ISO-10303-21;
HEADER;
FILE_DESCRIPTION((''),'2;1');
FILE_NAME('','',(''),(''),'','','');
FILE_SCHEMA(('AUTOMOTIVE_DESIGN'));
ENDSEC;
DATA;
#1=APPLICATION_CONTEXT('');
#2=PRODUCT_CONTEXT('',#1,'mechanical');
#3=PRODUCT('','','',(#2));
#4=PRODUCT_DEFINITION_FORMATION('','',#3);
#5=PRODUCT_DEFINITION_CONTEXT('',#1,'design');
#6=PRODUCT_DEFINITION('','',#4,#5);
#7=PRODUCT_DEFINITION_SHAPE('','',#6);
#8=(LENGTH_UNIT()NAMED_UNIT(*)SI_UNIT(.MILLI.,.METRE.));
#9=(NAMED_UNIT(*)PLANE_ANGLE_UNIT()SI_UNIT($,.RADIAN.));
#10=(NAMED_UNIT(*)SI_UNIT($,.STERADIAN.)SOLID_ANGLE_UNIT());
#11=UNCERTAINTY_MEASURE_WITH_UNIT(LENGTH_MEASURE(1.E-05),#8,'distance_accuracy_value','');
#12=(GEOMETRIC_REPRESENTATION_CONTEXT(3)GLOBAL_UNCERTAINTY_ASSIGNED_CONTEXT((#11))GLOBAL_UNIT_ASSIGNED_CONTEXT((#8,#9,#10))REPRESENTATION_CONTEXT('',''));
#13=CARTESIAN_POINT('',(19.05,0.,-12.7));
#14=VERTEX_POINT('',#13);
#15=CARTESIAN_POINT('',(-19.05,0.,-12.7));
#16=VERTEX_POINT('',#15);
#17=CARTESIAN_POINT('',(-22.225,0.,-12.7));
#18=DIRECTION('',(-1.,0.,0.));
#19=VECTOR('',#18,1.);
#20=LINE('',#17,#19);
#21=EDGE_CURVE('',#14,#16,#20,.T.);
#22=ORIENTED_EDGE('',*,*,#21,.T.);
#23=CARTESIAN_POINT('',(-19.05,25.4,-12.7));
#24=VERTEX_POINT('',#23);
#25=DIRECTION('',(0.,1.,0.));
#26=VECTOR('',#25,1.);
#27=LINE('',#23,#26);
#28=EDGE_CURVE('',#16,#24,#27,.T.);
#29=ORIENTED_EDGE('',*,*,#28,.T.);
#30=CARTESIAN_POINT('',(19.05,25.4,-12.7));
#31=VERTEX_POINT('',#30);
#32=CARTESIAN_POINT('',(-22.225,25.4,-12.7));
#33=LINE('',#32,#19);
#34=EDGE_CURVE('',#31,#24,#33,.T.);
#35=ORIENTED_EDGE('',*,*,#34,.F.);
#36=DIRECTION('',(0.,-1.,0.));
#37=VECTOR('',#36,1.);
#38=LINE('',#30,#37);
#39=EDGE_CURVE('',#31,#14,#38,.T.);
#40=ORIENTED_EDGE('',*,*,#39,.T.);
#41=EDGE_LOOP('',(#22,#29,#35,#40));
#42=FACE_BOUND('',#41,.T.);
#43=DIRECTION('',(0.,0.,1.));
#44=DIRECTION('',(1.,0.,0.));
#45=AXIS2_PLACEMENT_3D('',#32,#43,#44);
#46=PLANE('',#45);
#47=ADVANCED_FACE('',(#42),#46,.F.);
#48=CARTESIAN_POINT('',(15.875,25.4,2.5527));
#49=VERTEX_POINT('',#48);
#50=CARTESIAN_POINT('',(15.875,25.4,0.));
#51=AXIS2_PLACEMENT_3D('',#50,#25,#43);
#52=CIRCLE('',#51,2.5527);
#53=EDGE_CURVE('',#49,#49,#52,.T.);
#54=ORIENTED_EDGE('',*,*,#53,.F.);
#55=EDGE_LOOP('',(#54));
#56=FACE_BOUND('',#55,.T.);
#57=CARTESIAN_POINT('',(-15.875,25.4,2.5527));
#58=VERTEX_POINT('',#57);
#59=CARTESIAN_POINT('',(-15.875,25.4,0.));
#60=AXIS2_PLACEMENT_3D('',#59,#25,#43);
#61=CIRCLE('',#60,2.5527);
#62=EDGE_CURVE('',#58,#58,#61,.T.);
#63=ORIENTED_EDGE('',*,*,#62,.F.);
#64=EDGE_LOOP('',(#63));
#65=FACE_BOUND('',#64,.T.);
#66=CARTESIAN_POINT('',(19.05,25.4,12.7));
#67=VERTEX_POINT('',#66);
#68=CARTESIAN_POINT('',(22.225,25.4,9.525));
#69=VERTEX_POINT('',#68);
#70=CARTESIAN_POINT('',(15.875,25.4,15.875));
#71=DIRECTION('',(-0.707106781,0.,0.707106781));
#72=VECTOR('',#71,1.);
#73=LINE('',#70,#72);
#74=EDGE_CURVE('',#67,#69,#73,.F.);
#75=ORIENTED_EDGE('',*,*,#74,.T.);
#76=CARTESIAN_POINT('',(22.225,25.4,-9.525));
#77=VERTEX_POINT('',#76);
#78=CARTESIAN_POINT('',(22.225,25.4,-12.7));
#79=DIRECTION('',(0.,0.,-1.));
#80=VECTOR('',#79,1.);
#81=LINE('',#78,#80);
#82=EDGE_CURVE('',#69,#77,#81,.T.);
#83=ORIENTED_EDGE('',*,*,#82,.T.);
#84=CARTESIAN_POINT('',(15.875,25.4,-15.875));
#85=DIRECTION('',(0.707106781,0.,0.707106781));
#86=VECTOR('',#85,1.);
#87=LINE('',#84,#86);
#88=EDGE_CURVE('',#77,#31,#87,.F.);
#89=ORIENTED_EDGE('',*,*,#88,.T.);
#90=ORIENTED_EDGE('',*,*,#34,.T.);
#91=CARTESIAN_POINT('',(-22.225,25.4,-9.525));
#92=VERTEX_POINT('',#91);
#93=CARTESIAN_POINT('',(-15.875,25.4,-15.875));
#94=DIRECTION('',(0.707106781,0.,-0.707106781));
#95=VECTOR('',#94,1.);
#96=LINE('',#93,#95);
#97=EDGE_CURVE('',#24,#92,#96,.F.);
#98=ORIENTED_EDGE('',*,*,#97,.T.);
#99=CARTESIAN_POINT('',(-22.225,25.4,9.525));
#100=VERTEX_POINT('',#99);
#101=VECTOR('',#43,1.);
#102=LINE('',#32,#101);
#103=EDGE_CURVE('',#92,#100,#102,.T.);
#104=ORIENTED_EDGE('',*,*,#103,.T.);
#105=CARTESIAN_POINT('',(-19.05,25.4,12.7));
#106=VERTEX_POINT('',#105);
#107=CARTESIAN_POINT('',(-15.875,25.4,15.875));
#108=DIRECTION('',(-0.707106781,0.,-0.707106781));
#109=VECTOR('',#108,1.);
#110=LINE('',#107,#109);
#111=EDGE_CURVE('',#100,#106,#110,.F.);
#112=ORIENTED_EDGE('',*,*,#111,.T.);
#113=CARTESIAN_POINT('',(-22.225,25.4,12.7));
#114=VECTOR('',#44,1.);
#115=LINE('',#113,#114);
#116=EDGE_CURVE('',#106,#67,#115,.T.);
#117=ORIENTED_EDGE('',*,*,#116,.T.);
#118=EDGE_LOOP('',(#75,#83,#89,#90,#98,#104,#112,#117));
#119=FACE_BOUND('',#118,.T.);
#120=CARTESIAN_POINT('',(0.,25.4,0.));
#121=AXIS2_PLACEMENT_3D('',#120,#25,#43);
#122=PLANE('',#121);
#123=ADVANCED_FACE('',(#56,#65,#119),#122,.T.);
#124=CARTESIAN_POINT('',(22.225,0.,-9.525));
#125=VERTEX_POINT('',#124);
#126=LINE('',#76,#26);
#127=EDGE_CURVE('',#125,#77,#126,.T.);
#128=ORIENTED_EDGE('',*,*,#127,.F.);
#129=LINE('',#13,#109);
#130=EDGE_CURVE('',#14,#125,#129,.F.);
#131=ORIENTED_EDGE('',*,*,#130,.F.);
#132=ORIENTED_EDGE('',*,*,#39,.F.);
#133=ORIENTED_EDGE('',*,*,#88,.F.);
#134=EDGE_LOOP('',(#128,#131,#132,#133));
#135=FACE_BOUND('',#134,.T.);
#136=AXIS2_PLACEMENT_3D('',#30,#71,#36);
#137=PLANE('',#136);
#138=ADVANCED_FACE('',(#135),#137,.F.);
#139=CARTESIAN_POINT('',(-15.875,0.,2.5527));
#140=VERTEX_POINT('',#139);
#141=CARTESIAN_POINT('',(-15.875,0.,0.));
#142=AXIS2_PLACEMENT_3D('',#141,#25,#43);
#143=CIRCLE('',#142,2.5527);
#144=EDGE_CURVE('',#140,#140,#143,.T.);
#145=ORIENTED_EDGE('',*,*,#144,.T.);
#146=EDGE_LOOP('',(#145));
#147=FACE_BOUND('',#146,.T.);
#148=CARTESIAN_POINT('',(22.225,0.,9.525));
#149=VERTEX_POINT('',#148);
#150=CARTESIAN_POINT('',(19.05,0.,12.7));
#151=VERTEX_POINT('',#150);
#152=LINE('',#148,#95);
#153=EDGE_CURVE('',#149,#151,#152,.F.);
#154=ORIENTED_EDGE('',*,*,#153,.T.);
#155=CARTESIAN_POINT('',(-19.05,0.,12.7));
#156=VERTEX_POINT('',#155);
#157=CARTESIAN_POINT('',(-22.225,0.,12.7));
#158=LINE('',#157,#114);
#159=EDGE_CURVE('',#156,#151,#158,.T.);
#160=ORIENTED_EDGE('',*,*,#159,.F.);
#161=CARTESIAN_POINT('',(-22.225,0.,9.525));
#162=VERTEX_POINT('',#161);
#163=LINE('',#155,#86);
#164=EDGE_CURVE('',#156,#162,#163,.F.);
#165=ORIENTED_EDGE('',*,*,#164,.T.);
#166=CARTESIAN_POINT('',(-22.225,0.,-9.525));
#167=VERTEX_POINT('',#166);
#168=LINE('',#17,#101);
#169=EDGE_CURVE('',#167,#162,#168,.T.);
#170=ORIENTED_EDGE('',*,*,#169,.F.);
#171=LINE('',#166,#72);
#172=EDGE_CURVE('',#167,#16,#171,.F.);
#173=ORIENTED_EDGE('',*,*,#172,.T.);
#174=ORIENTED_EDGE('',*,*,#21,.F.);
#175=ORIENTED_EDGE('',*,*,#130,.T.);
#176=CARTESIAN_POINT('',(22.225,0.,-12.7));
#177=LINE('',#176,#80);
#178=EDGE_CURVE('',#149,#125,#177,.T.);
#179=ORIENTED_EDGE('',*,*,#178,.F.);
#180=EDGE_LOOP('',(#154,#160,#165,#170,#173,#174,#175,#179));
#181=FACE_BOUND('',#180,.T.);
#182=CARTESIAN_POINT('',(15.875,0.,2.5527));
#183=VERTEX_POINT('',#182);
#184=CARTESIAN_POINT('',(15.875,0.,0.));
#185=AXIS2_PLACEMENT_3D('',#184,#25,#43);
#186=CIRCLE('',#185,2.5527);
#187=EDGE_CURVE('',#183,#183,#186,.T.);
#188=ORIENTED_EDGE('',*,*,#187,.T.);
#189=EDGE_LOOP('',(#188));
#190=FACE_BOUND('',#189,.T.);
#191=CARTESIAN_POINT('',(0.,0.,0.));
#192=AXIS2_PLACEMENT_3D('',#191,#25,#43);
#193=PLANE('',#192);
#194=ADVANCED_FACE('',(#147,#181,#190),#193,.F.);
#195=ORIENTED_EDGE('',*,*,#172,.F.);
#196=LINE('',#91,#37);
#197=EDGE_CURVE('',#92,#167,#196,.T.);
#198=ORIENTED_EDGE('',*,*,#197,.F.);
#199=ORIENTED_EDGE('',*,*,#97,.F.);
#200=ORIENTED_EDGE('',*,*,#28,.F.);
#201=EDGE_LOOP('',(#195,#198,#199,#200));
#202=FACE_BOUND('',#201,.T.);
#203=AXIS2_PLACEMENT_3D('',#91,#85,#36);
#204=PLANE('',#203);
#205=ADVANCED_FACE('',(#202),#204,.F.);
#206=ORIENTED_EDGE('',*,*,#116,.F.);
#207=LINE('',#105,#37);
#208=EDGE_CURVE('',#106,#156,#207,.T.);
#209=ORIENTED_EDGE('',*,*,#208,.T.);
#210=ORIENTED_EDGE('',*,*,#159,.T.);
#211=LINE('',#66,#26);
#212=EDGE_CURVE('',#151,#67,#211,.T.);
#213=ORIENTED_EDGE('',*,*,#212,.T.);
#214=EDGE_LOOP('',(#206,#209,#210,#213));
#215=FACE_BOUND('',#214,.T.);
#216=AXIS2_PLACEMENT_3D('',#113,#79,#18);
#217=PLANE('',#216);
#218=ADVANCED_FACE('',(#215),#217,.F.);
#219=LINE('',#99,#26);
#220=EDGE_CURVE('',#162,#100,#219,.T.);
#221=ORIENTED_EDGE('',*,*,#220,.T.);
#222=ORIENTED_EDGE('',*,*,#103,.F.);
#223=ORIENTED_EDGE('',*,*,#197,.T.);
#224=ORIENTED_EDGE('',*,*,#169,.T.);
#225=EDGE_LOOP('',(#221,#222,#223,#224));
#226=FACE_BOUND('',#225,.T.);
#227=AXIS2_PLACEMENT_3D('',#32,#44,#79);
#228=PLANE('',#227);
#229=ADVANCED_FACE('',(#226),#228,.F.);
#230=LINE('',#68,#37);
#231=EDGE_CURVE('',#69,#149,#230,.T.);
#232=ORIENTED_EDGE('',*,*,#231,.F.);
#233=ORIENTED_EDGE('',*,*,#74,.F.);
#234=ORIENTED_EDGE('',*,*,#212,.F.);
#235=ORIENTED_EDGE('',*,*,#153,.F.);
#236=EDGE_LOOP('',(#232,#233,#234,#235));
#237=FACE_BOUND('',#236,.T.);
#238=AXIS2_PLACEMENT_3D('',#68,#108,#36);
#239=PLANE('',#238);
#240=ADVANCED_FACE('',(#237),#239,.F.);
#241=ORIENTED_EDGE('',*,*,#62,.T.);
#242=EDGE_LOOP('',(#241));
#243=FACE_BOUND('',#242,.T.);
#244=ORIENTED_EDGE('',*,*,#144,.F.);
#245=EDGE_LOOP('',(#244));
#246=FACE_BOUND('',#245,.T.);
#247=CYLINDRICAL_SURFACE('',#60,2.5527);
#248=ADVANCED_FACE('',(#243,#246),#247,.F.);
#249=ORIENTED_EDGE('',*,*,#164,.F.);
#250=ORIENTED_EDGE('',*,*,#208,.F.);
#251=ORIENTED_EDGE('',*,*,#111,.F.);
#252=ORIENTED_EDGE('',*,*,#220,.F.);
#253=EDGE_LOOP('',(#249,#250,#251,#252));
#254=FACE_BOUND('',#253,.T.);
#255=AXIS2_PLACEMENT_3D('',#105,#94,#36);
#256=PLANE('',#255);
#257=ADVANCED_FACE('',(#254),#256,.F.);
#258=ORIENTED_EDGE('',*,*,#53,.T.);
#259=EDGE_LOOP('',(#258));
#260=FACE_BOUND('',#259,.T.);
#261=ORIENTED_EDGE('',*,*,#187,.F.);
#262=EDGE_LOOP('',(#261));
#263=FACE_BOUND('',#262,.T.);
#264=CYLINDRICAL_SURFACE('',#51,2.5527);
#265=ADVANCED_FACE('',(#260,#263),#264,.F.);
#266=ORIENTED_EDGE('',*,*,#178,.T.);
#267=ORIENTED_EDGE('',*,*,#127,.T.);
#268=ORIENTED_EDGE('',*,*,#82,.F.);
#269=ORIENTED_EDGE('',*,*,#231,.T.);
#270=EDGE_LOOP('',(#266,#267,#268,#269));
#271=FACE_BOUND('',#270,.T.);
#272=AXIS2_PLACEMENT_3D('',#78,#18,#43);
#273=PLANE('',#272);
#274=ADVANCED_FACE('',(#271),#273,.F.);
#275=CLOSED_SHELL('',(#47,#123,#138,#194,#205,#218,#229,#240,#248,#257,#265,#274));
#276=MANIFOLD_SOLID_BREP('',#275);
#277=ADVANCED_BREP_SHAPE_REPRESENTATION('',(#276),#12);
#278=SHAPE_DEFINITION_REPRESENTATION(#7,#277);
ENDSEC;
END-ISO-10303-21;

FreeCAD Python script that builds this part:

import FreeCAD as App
import Part
import Sketcher
from FreeCAD import Vector
Q = App.Units.Quantity


def edges_at(feature, points):
    """Names of the edges that pass closest to the given points."""
    edges = feature.Shape.Edges
    near = lambda p: min(range(len(edges)), key=lambda i: edges[i].distToShape(Part.Vertex(*p))[0])
    return sorted({f"Edge{near(p) + 1}" for p in points})


def add_polygon(sketch, points):
    """Adds a closed chain of lines whose ends are joined by coincident constraints."""
    first, n = sketch.GeometryCount, len(points)
    for a, b in zip(points, points[1:] + points[:1]):
        sketch.addGeometry(Part.LineSegment(App.Vector(*a, 0), App.Vector(*b, 0)), False)
    for i in range(n):
        sketch.addConstraint(Sketcher.Constraint("Coincident", first + i, 2, first + (i + 1) % n, 1))

doc = App.newDocument("Part")
body = doc.addObject("PartDesign::Body", "Body")

# Sketch on XZ plane
sketch1 = body.newObject("Sketcher::SketchObject", "Sketch")
sketch1.AttachmentSupport = (doc.getObject("XZ_Plane"), [""])
sketch1.MapMode = "FlatFace"
add_polygon(sketch1, [(-22, -13), (-22, 13), (22, 13), (22, -13)])  # lines 0-3
sketch1.addConstraint([
    Sketcher.Constraint("Vertical", 0),
    Sketcher.Constraint("Horizontal", 1),
    Sketcher.Constraint("Vertical", 2),
    Sketcher.Constraint("Horizontal", 3),
    Sketcher.Constraint("Symmetric", 0, 2, 2, 2, -1, 1),
    Sketcher.Constraint("DistanceY", 0, 1, 0, 2, Q("1 in")),
    Sketcher.Constraint("DistanceX", 1, 1, 1, 2, Q("1.75 in")),
])
pad1 = body.newObject("PartDesign::Pad", "Pad")
pad1.Profile = sketch1
pad1.Length = Q("1 in")
pad1.Reversed = True

# Sketch on XZ plane
sketch2 = body.newObject("Sketcher::SketchObject", "Sketch001")
sketch2.AttachmentSupport = (doc.getObject("XZ_Plane"), [""])
sketch2.MapMode = "FlatFace"
sketch2.AttachmentOffset = App.Placement(Vector(0, 0, -1 * 25.4), App.Rotation())
sketch2.addGeometry([
    Part.Circle(Vector(-15.9, 0, 0), Vector(0, 0, 1), 2.6),
    Part.Circle(Vector(15.9, 0, 0), Vector(0, 0, 1), 2.6),
], False)
sketch2.addConstraint([
    Sketcher.Constraint("Equal", 0, 1),
    Sketcher.Constraint("Symmetric", 0, 3, 1, 3, -1, 1),
    Sketcher.Constraint("PointOnObject", 0, 3, -1),
    Sketcher.Constraint("Diameter", 0, Q("0.201 in")),
    Sketcher.Constraint("DistanceX", 0, 3, 1, 3, Q("1.25 in")),
])
doc.recompute()
hole = body.newObject("PartDesign::Hole", "Hole")
hole.Profile = sketch2
hole.ThreadType = "None"
hole.Diameter = Q("0.201 in")
hole.DepthType = "ThroughAll"
hole.Reversed = True
doc.recompute()

chamfer = body.newObject("PartDesign::Chamfer", "Chamfer")
chamfer.Base = (hole, edges_at(hole, [
    (22.225, 12.7, 12.7),
    (-22.225, 12.7, 12.7),
    (-22.225, 12.7, -12.7),
    (22.225, 12.7, -12.7),
]))
chamfer.Size = Q("0.125 in")

doc.recompute()
